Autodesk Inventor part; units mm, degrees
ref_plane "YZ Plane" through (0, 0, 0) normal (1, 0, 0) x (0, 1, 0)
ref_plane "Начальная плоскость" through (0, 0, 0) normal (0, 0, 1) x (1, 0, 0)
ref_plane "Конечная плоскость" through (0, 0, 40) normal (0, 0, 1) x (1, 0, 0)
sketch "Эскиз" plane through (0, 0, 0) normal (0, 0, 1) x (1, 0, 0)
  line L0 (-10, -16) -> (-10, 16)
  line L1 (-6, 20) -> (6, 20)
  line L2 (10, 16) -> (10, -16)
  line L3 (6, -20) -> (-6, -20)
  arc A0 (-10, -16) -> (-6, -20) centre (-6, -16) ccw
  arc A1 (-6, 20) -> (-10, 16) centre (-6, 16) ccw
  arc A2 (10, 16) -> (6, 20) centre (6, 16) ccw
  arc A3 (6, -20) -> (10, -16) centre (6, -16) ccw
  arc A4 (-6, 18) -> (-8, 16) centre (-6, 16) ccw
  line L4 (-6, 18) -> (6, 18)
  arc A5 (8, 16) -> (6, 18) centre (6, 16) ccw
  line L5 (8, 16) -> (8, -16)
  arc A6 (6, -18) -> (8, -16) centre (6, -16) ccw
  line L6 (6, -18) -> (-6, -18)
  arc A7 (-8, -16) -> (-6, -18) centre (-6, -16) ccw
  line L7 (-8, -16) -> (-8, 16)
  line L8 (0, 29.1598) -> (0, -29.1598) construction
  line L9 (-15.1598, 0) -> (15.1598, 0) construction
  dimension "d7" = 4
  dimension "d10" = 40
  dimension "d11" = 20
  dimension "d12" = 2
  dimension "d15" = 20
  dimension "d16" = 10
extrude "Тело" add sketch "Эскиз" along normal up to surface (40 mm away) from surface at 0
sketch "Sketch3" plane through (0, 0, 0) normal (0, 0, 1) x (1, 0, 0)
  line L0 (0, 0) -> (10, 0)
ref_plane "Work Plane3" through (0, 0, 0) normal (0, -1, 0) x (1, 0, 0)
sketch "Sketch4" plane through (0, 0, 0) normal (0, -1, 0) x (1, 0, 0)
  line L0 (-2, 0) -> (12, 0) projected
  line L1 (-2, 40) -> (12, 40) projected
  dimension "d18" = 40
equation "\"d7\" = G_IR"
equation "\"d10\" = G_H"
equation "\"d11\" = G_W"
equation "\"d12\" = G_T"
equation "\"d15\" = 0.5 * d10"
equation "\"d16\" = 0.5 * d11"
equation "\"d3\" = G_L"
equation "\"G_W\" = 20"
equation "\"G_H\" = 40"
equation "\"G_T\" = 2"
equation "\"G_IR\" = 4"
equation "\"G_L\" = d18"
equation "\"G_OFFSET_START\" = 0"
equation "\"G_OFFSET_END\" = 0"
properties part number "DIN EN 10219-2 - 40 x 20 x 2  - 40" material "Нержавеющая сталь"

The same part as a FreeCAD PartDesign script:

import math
import FreeCAD as App
import Part
import Sketcher

V = App.Vector
Q = App.Units.Quantity

doc = App.newDocument("Part")
body = doc.addObject("PartDesign::Body", "Body")

sketch1 = doc.addObject("Sketcher::SketchObject", "Sketch")
body.addObject(sketch1)
sketch1.AttachmentSupport = (doc.XY_Plane, [""])
sketch1.MapMode = "FlatFace"
sketch1.addGeometry([
    Part.LineSegment(V(-10, 16, 0), V(-10, -16, 0)),
    Part.ArcOfCircle(Part.Circle(V(-6, -16, 0), V(0, 0, 1), 4), math.radians(180), math.radians(270)),
    Part.LineSegment(V(-6, -20, 0), V(6, -20, 0)),
    Part.ArcOfCircle(Part.Circle(V(6, -16, 0), V(0, 0, 1), 4), math.radians(-90), math.radians(0)),
    Part.LineSegment(V(10, -16, 0), V(10, 16, 0)),
    Part.ArcOfCircle(Part.Circle(V(6, 16, 0), V(0, 0, 1), 4), math.radians(0), math.radians(90)),
    Part.LineSegment(V(6, 20, 0), V(-6, 20, 0)),
    Part.ArcOfCircle(Part.Circle(V(-6, 16, 0), V(0, 0, 1), 4), math.radians(90), math.radians(180)),
    Part.ArcOfCircle(Part.Circle(V(-6, 16, 0), V(0, 0, 1), 2), math.radians(90), math.radians(180)),
    Part.LineSegment(V(-6, 18, 0), V(6, 18, 0)),
    Part.ArcOfCircle(Part.Circle(V(6, 16, 0), V(0, 0, 1), 2), math.radians(0), math.radians(90)),
    Part.LineSegment(V(8, 16, 0), V(8, -16, 0)),
    Part.ArcOfCircle(Part.Circle(V(6, -16, 0), V(0, 0, 1), 2), math.radians(-90), math.radians(0)),
    Part.LineSegment(V(6, -18, 0), V(-6, -18, 0)),
    Part.ArcOfCircle(Part.Circle(V(-6, -16, 0), V(0, 0, 1), 2), math.radians(180), math.radians(270)),
    Part.LineSegment(V(-8, -16, 0), V(-8, 16, 0)),
], False)
sketch1.addConstraint([
    Sketcher.Constraint("Tangent", 0, 2, 1, 1),
    Sketcher.Constraint("Tangent", 1, 2, 2, 1),
    Sketcher.Constraint("Tangent", 2, 2, 3, 1),
    Sketcher.Constraint("Tangent", 3, 2, 4, 1),
    Sketcher.Constraint("Tangent", 4, 2, 5, 1),
    Sketcher.Constraint("Tangent", 5, 2, 6, 1),
    Sketcher.Constraint("Tangent", 6, 2, 7, 1),
    Sketcher.Constraint("Tangent", 7, 2, 0, 1),
    Sketcher.Constraint("Tangent", 8, 1, 9, 1),
    Sketcher.Constraint("Tangent", 9, 2, 10, 2),
    Sketcher.Constraint("Tangent", 10, 1, 11, 1),
    Sketcher.Constraint("Tangent", 11, 2, 12, 2),
    Sketcher.Constraint("Tangent", 12, 1, 13, 1),
    Sketcher.Constraint("Tangent", 13, 2, 14, 2),
    Sketcher.Constraint("Tangent", 14, 1, 15, 1),
    Sketcher.Constraint("Tangent", 15, 2, 8, 2),
    Sketcher.Constraint("Vertical", 0),
    Sketcher.Constraint("Horizontal", 2),
    Sketcher.Constraint("Vertical", 4),
    Sketcher.Constraint("Horizontal", 6),
    Sketcher.Constraint("Horizontal", 9),
    Sketcher.Constraint("Vertical", 11),
    Sketcher.Constraint("Horizontal", 13),
    Sketcher.Constraint("Vertical", 15),
    Sketcher.Constraint("Coincident", 8, 3, 7, 3),
    Sketcher.Constraint("Coincident", 10, 3, 5, 3),
    Sketcher.Constraint("Coincident", 12, 3, 3, 3),
    Sketcher.Constraint("Equal", 1, 3),
    Sketcher.Constraint("Equal", 3, 5),
    Sketcher.Constraint("Equal", 5, 7),
    Sketcher.Constraint("Equal", 12, 14),
    Sketcher.Constraint("Symmetric", 1, 3, 5, 3, -1, 1),
    Sketcher.Constraint("Radius", 1, Q("4 mm")),
    Sketcher.Constraint("Radius", 8, Q("2 mm")),
    Sketcher.Constraint("DistanceX", 0, 2, -1, 1, Q("10 mm")),
    Sketcher.Constraint("DistanceY", 1, 2, -1, 1, Q("20 mm")),
])
pad1 = doc.addObject("PartDesign::Pad", "Pad")
body.addObject(pad1)
pad1.Profile = sketch1
pad1.Length = 40

doc.recompute()
